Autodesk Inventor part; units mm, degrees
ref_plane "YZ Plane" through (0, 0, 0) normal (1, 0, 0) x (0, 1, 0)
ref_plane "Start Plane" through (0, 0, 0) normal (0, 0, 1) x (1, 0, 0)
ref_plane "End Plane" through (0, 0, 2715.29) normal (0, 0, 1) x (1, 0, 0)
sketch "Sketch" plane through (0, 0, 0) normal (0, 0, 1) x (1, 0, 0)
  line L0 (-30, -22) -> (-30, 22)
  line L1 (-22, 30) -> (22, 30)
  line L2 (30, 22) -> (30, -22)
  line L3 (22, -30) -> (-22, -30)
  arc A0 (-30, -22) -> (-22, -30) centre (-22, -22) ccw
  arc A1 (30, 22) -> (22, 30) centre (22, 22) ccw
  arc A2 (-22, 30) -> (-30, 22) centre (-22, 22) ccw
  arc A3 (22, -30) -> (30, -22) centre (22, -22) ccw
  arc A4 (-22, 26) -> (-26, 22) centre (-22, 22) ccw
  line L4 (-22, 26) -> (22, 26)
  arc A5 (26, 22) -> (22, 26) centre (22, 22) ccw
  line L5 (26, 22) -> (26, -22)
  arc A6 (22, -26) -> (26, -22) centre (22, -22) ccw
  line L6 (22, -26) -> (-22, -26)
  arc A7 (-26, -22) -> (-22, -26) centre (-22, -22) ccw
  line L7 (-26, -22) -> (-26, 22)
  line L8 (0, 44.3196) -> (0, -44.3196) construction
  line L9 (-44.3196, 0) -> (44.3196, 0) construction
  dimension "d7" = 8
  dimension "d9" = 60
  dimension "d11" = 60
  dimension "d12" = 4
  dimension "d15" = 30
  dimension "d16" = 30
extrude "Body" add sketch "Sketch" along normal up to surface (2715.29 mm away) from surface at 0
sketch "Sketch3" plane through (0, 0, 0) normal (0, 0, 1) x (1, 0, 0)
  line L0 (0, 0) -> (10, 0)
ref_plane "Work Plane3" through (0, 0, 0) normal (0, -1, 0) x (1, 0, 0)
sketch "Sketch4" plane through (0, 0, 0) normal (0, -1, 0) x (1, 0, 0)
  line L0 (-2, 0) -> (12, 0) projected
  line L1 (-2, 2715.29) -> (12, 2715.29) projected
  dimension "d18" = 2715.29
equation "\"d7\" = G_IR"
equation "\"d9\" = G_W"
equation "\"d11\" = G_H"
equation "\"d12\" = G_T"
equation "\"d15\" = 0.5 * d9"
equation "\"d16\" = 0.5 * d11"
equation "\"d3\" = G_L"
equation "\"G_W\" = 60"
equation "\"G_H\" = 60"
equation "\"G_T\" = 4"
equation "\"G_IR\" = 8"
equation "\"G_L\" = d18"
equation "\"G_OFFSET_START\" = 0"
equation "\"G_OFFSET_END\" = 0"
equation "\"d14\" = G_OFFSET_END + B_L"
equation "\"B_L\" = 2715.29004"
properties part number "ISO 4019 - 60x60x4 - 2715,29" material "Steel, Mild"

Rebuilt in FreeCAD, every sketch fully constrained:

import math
import FreeCAD as App
import Part
import Sketcher

V = App.Vector
Q = App.Units.Quantity

doc = App.newDocument("Part")
body = doc.addObject("PartDesign::Body", "Body")

# Sketch on XY plane
sketch1 = body.newObject("Sketcher::SketchObject", "Sketch")
sketch1.AttachmentSupport = (doc.getObject("XY_Plane"), [""])
sketch1.MapMode = "FlatFace"
sketch1.addGeometry(Part.LineSegment(V(-30, 22, 0), V(-30, -22, 0)), False)
sketch1.addGeometry(Part.ArcOfCircle(Part.Circle(V(-22, -22, 0), V(0, 0, 1), 8), math.radians(180), math.radians(270)), False)
sketch1.addGeometry(Part.LineSegment(V(-22, -30, 0), V(22, -30, 0)), False)
sketch1.addGeometry(Part.ArcOfCircle(Part.Circle(V(22, -22, 0), V(0, 0, 1), 8), math.radians(-90), math.radians(0)), False)
sketch1.addGeometry(Part.LineSegment(V(30, -22, 0), V(30, 22, 0)), False)
sketch1.addGeometry(Part.ArcOfCircle(Part.Circle(V(22, 22, 0), V(0, 0, 1), 8), math.radians(0), math.radians(90)), False)
sketch1.addGeometry(Part.LineSegment(V(22, 30, 0), V(-22, 30, 0)), False)
sketch1.addGeometry(Part.ArcOfCircle(Part.Circle(V(-22, 22, 0), V(0, 0, 1), 8), math.radians(90), math.radians(180)), False)
sketch1.addGeometry(Part.ArcOfCircle(Part.Circle(V(-22, 22, 0), V(0, 0, 1), 4), math.radians(90), math.radians(180)), False)
sketch1.addGeometry(Part.LineSegment(V(-22, 26, 0), V(22, 26, 0)), False)
sketch1.addGeometry(Part.ArcOfCircle(Part.Circle(V(22, 22, 0), V(0, 0, 1), 4), math.radians(0), math.radians(90)), False)
sketch1.addGeometry(Part.LineSegment(V(26, 22, 0), V(26, -22, 0)), False)
sketch1.addGeometry(Part.ArcOfCircle(Part.Circle(V(22, -22, 0), V(0, 0, 1), 4), math.radians(-90), math.radians(0)), False)
sketch1.addGeometry(Part.LineSegment(V(22, -26, 0), V(-22, -26, 0)), False)
sketch1.addGeometry(Part.ArcOfCircle(Part.Circle(V(-22, -22, 0), V(0, 0, 1), 4), math.radians(180), math.radians(270)), False)
sketch1.addGeometry(Part.LineSegment(V(-26, -22, 0), V(-26, 22, 0)), False)
sketch1.addConstraint(Sketcher.Constraint("Tangent", 0, 2, 1, 1))
sketch1.addConstraint(Sketcher.Constraint("Tangent", 1, 2, 2, 1))
sketch1.addConstraint(Sketcher.Constraint("Tangent", 2, 2, 3, 1))
sketch1.addConstraint(Sketcher.Constraint("Tangent", 3, 2, 4, 1))
sketch1.addConstraint(Sketcher.Constraint("Tangent", 4, 2, 5, 1))
sketch1.addConstraint(Sketcher.Constraint("Tangent", 5, 2, 6, 1))
sketch1.addConstraint(Sketcher.Constraint("Tangent", 6, 2, 7, 1))
sketch1.addConstraint(Sketcher.Constraint("Tangent", 7, 2, 0, 1))
sketch1.addConstraint(Sketcher.Constraint("Tangent", 8, 1, 9, 1))
sketch1.addConstraint(Sketcher.Constraint("Tangent", 9, 2, 10, 2))
sketch1.addConstraint(Sketcher.Constraint("Tangent", 10, 1, 11, 1))
sketch1.addConstraint(Sketcher.Constraint("Tangent", 11, 2, 12, 2))
sketch1.addConstraint(Sketcher.Constraint("Tangent", 12, 1, 13, 1))
sketch1.addConstraint(Sketcher.Constraint("Tangent", 13, 2, 14, 2))
sketch1.addConstraint(Sketcher.Constraint("Tangent", 14, 1, 15, 1))
sketch1.addConstraint(Sketcher.Constraint("Tangent", 15, 2, 8, 2))
sketch1.addConstraint(Sketcher.Constraint("Vertical", 0))
sketch1.addConstraint(Sketcher.Constraint("Horizontal", 2))
sketch1.addConstraint(Sketcher.Constraint("Vertical", 4))
sketch1.addConstraint(Sketcher.Constraint("Horizontal", 6))
sketch1.addConstraint(Sketcher.Constraint("Horizontal", 9))
sketch1.addConstraint(Sketcher.Constraint("Vertical", 11))
sketch1.addConstraint(Sketcher.Constraint("Horizontal", 13))
sketch1.addConstraint(Sketcher.Constraint("Vertical", 15))
sketch1.addConstraint(Sketcher.Constraint("Coincident", 8, 3, 7, 3))
sketch1.addConstraint(Sketcher.Constraint("Coincident", 10, 3, 5, 3))
sketch1.addConstraint(Sketcher.Constraint("Coincident", 12, 3, 3, 3))
sketch1.addConstraint(Sketcher.Constraint("Equal", 1, 3))
sketch1.addConstraint(Sketcher.Constraint("Equal", 3, 5))
sketch1.addConstraint(Sketcher.Constraint("Equal", 5, 7))
sketch1.addConstraint(Sketcher.Constraint("Equal", 12, 14))
sketch1.addConstraint(Sketcher.Constraint("Symmetric", 1, 3, 5, 3, -1, 1))
sketch1.addConstraint(Sketcher.Constraint("Equal", 13, 0))
sketch1.addConstraint(Sketcher.Constraint("Radius", 1, Q("8 mm")))
sketch1.addConstraint(Sketcher.Constraint("Radius", 8, Q("4 mm")))
sketch1.addConstraint(Sketcher.Constraint("DistanceX", 0, 2, -1, 1, Q("30 mm")))
pad1 = body.newObject("PartDesign::Pad", "Pad")
pad1.Profile = sketch1
pad1.Length = 2715.29

doc.recompute()
